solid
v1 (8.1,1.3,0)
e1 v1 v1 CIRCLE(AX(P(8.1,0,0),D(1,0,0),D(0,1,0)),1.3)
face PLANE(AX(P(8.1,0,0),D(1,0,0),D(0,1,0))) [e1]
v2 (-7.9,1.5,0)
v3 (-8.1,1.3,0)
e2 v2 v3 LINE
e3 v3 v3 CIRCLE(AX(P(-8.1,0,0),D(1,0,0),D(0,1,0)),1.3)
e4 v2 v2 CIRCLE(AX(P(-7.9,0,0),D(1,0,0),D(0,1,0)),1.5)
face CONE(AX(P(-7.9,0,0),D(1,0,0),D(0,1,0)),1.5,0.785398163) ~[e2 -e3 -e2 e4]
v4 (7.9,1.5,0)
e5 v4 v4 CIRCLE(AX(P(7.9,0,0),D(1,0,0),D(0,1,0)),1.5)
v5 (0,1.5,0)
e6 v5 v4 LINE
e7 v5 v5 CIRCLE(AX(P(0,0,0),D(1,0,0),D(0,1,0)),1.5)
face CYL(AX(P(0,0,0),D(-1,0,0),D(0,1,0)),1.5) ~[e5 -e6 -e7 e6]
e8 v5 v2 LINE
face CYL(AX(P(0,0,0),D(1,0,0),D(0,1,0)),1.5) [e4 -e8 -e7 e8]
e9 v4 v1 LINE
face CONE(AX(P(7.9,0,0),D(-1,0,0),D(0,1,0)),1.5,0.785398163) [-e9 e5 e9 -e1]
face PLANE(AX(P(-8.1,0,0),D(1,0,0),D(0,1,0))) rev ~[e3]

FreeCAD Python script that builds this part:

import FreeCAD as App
import Part
import Sketcher
from FreeCAD import Vector
Q = App.Units.Quantity


def edges_at(feature, points):
    """Names of the edges that pass closest to the given points."""
    edges = feature.Shape.Edges
    near = lambda p: min(range(len(edges)), key=lambda i: edges[i].distToShape(Part.Vertex(*p))[0])
    return sorted({f"Edge{near(p) + 1}" for p in points})

doc = App.newDocument("Part")
params = doc.addObject("Spreadsheet::Sheet", "Params")
for row, (alias, value) in enumerate([
    ("sketch1_diameter", "3 mm"),
    ("pad1_length", "16.2 mm"),
    ("chamfer_size", "0.2 mm"),
], start=1):
    params.set(f"A{row}", alias)
    params.set(f"B{row}", "=" + value)
    params.setAlias(f"B{row}", alias)

body = doc.addObject("PartDesign::Body", "Body")

# Sketch on YZ plane
sketch1 = body.newObject("Sketcher::SketchObject", "Sketch")
sketch1.AttachmentSupport = (doc.getObject("YZ_Plane"), [""])
sketch1.MapMode = "FlatFace"
sketch1.addGeometry(Part.Circle(Vector(0, 0, 0), Vector(0, 0, 1), 1.5), False)
sketch1.addConstraint(Sketcher.Constraint("Coincident", 0, 3, -1, 1))
sketch1.addConstraint(Sketcher.Constraint("Diameter", 0, Q("3 mm")))
sketch1.setExpression("Constraints[1]", "Params.sketch1_diameter")
pad1 = body.newObject("PartDesign::Pad", "Pad")
pad1.Profile = sketch1
pad1.setExpression("Length", "Params.pad1_length")
pad1.Midplane = True
doc.recompute()

chamfer = body.newObject("PartDesign::Chamfer", "Chamfer")
chamfer.Base = (pad1, edges_at(pad1, [(8.1, -1.5, 0), (-8.1, -1.5, 0)]))
chamfer.setExpression("Size", "Params.chamfer_size")

doc.recompute()
